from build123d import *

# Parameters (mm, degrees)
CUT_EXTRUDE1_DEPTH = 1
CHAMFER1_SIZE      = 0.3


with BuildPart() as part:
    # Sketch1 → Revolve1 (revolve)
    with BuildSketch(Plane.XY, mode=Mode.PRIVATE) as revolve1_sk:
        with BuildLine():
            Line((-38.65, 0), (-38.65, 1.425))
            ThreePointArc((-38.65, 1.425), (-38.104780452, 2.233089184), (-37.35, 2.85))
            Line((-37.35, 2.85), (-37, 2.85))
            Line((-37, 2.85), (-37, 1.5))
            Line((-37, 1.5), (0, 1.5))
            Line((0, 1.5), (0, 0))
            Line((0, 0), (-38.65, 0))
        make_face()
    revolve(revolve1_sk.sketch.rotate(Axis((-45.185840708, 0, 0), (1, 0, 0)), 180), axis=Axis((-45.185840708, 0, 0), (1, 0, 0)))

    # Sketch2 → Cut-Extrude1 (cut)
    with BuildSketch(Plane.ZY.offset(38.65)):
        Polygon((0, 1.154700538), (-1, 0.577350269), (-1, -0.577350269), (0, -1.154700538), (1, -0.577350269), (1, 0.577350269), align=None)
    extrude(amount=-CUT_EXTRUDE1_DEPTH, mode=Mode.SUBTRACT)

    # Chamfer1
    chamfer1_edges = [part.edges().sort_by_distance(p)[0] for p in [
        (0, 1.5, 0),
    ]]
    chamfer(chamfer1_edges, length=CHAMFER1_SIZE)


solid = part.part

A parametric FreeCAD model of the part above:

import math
import FreeCAD as App
import Part
import Sketcher
from FreeCAD import Vector
Q = App.Units.Quantity


def edges_at(feature, points):
    """Names of the edges that pass closest to the given points."""
    edges = feature.Shape.Edges
    near = lambda p: min(range(len(edges)), key=lambda i: edges[i].distToShape(Part.Vertex(*p))[0])
    return sorted({f"Edge{near(p) + 1}" for p in points})


def add_polygon(sketch, points):
    """Adds a closed chain of lines whose ends are joined by coincident constraints."""
    first, n = sketch.GeometryCount, len(points)
    for a, b in zip(points, points[1:] + points[:1]):
        sketch.addGeometry(Part.LineSegment(App.Vector(*a, 0), App.Vector(*b, 0)), False)
    for i in range(n):
        sketch.addConstraint(Sketcher.Constraint("Coincident", first + i, 2, first + (i + 1) % n, 1))

doc = App.newDocument("Part")
body = doc.addObject("PartDesign::Body", "Body")

sketch1 = doc.addObject("Sketcher::SketchObject", "Sketch")
body.addObject(sketch1)
sketch1.AttachmentSupport = (doc.XY_Plane, [""])
sketch1.MapMode = "FlatFace"
sketch1.addGeometry([
    Part.LineSegment(Vector(-38.65, 1.425, 0), Vector(-38.65, 0, 0)),
    Part.LineSegment(Vector(-38.65, 0, 0), Vector(0, 0, 0)),
    Part.LineSegment(Vector(0, 0, 0), Vector(0, 1.5, 0)),
    Part.LineSegment(Vector(0, 1.5, 0), Vector(-37, 1.5, 0)),
    Part.LineSegment(Vector(-37, 1.5, 0), Vector(-37, 2.85, 0)),
    Part.LineSegment(Vector(-37, 2.85, 0), Vector(-37.35, 2.85, 0)),
    Part.ArcOfCircle(Part.Circle(Vector(-35.629914, -0.024683, 0), Vector(0, 0, 1), 3.35), math.radians(120.89447), math.radians(154.358342)),
], False)
sketch1.addConstraint([
    Sketcher.Constraint("Coincident", 0, 2, 1, 1),
    Sketcher.Constraint("Coincident", 1, 2, 2, 1),
    Sketcher.Constraint("Coincident", 2, 2, 3, 1),
    Sketcher.Constraint("Coincident", 3, 2, 4, 1),
    Sketcher.Constraint("Coincident", 4, 2, 5, 1),
    Sketcher.Constraint("Coincident", 5, 2, 6, 1),
    Sketcher.Constraint("Coincident", 6, 2, 0, 1),
    Sketcher.Constraint("Vertical", 0),
    Sketcher.Constraint("Horizontal", 1),
    Sketcher.Constraint("Vertical", 2),
    Sketcher.Constraint("Horizontal", 3),
    Sketcher.Constraint("Vertical", 4),
    Sketcher.Constraint("Horizontal", 5),
    Sketcher.Constraint("Coincident", 1, 2, -1, 1),
    Sketcher.Constraint("DistanceX", 3, 2, 3, 1, 37.0),
    Sketcher.Constraint("Radius", 6, 3.35),
    Sketcher.Constraint("DistanceY", 2, 1, 2, 2, 1.5),
    Sketcher.Constraint("DistanceX", 1, 1, 1, 2, 38.65),
    Sketcher.Constraint("DistanceX", 5, 2, 5, 1, 0.35),
    Sketcher.Constraint("DistanceY", 4, 1, 4, 2, 1.35),
    Sketcher.Constraint("DistanceY", 0, 2, 0, 1, 1.425),
])
revolution = doc.addObject("PartDesign::Revolution", "Revolution")
body.addObject(revolution)
revolution.Profile = sketch1
revolution.ReferenceAxis = (sketch1, ["H_Axis"])
revolution.Angle = 360

sketch2 = doc.addObject("Sketcher::SketchObject", "Sketch001")
body.addObject(sketch2)
sketch2.AttachmentSupport = (doc.YZ_Plane, [""])
sketch2.MapMode = "FlatFace"
sketch2.AttachmentOffset = App.Placement(Vector(0, 0, -38.65), App.Rotation())
add_polygon(sketch2, [(1.154701, 0), (0.57735, -1), (-0.57735, -1), (-1.154701, 0), (-0.57735, 1), (0.57735, 1)])
sketch2.addConstraint([
    Sketcher.Constraint("Horizontal", 1),
    Sketcher.Constraint("Horizontal", 4),
    Sketcher.Constraint("Symmetric", 0, 2, 3, 2, -1, 1),
    Sketcher.Constraint("Symmetric", 2, 2, 5, 2, -1, 1),
    Sketcher.Constraint("PointOnObject", 2, 2, -1),
    Sketcher.Constraint("Parallel", 2, 5),
    Sketcher.Constraint("Vertical", 1, 2, 3, 2),
    Sketcher.Constraint("Angle", 0, Q("-120 deg")),
    Sketcher.Constraint("DistanceY", 0, 2, -1, 1, 1.0),
    Sketcher.Constraint("DistanceX", 1, 2, 1, 1, 1.154701),
])
pocket1 = doc.addObject("PartDesign::Pocket", "Pocket")
body.addObject(pocket1)
pocket1.Profile = sketch2
pocket1.Length = 1
pocket1.Reversed = True
doc.recompute()

chamfer = doc.addObject("PartDesign::Chamfer", "Chamfer")
body.addObject(chamfer)
chamfer.Base = (pocket1, edges_at(pocket1, [(0, 1.5, 0)]))
chamfer.Size = 0.3

doc.recompute()
